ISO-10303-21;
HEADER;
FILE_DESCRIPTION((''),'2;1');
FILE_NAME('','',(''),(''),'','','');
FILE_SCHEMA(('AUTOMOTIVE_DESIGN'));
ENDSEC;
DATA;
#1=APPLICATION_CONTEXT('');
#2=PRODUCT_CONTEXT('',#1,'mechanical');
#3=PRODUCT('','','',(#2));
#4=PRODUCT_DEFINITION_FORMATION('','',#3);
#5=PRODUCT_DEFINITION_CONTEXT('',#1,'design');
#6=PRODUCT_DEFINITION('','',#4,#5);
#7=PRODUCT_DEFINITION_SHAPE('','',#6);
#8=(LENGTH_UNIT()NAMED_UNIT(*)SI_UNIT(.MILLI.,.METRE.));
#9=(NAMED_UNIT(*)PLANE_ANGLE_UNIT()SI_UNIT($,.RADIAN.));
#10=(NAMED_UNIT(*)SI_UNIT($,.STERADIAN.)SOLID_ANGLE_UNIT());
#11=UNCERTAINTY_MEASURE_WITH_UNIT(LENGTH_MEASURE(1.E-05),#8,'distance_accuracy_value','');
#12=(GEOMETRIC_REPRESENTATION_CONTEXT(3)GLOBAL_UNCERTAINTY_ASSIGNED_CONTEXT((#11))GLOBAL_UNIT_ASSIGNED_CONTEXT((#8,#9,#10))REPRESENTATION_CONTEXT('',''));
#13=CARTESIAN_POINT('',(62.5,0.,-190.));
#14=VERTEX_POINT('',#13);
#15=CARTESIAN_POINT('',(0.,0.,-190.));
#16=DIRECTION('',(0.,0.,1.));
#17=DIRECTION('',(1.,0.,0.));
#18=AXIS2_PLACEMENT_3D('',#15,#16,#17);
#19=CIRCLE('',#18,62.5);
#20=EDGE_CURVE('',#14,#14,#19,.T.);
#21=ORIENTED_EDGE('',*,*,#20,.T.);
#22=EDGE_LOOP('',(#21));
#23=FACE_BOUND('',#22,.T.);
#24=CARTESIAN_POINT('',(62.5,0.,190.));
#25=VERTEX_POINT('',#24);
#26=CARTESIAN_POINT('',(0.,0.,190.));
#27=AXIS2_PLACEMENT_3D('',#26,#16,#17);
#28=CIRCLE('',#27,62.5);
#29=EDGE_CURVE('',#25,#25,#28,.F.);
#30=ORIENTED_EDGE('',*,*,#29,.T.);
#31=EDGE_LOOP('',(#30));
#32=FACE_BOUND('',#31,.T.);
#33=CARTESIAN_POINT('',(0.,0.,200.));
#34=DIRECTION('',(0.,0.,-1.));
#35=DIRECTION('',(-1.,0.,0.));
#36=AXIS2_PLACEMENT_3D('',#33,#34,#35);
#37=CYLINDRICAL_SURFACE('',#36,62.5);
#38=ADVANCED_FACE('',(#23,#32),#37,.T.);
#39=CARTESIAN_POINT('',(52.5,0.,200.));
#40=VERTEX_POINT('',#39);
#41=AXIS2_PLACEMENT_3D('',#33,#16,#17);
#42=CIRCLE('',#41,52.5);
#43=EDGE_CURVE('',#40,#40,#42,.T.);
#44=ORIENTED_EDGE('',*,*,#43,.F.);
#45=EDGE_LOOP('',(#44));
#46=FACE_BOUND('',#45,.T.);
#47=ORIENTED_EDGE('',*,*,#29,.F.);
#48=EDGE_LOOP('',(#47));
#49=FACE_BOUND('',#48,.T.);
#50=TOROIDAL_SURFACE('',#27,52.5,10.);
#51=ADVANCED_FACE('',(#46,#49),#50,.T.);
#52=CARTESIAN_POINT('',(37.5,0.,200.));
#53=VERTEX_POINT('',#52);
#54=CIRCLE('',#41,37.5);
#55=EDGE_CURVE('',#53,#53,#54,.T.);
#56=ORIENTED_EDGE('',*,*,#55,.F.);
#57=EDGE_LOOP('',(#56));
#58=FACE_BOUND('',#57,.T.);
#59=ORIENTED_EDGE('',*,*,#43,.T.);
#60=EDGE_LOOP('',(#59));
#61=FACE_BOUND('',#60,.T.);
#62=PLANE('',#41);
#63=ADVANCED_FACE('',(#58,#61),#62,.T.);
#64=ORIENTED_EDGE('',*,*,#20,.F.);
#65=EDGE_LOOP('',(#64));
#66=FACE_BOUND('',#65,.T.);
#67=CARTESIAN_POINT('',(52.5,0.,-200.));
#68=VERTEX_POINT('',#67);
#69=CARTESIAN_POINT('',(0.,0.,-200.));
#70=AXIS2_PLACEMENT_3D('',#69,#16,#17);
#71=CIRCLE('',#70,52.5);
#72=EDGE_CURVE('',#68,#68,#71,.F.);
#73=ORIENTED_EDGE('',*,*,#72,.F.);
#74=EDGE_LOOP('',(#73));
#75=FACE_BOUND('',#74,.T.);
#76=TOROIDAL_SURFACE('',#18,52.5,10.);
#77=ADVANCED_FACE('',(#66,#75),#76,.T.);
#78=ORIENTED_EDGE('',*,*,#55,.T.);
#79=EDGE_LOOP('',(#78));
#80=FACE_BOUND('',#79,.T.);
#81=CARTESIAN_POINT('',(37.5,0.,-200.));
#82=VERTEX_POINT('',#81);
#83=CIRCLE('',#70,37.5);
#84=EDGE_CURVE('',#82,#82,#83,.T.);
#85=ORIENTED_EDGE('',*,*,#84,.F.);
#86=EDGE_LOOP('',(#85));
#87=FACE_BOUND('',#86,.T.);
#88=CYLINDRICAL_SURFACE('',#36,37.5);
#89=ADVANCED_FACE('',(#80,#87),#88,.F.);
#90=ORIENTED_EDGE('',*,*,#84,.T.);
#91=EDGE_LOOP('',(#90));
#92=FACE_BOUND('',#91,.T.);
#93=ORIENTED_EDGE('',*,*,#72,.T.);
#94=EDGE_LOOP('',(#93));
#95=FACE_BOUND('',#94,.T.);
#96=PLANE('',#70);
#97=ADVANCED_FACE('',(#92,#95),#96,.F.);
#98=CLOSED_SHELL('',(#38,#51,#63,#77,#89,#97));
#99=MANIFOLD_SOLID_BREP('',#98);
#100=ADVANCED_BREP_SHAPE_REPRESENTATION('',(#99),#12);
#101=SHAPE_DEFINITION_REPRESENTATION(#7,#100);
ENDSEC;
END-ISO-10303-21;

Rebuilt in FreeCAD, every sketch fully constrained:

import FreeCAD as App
import Part
import Sketcher
from FreeCAD import Vector


def edges_at(feature, points):
    """Names of the edges that pass closest to the given points."""
    edges = feature.Shape.Edges
    near = lambda p: min(range(len(edges)), key=lambda i: edges[i].distToShape(Part.Vertex(*p))[0])
    return sorted({f"Edge{near(p) + 1}" for p in points})

doc = App.newDocument("Part")
body = doc.addObject("PartDesign::Body", "Body")

sketch1 = body.newObject("Sketcher::SketchObject", "Sketch")
sketch1.AttachmentSupport = (doc.getObject("XY_Plane"), [""])
sketch1.MapMode = "FlatFace"
sketch1.addGeometry([
    Part.Circle(Vector(0, 0, 0), Vector(0, 0, 1), 62.5),
    Part.Circle(Vector(0, 0, 0), Vector(0, 0, 1), 37.5),
], False)
sketch1.addConstraint([
    Sketcher.Constraint("Coincident", 0, 3, -1, 1),
    Sketcher.Constraint("Coincident", 1, 3, -1, 1),
    Sketcher.Constraint("Diameter", 0, 125.0),
    Sketcher.Constraint("Diameter", 1, 75.0),
])
pad1 = body.newObject("PartDesign::Pad", "Pad")
pad1.Profile = sketch1
pad1.Length = 400
pad1.Midplane = True
doc.recompute()

fillet = body.newObject("PartDesign::Fillet", "Fillet")
fillet.Base = (pad1, edges_at(pad1, [(-62.5, 0, -200), (-62.5, 0, 200)]))
fillet.Radius = 10

doc.recompute()
